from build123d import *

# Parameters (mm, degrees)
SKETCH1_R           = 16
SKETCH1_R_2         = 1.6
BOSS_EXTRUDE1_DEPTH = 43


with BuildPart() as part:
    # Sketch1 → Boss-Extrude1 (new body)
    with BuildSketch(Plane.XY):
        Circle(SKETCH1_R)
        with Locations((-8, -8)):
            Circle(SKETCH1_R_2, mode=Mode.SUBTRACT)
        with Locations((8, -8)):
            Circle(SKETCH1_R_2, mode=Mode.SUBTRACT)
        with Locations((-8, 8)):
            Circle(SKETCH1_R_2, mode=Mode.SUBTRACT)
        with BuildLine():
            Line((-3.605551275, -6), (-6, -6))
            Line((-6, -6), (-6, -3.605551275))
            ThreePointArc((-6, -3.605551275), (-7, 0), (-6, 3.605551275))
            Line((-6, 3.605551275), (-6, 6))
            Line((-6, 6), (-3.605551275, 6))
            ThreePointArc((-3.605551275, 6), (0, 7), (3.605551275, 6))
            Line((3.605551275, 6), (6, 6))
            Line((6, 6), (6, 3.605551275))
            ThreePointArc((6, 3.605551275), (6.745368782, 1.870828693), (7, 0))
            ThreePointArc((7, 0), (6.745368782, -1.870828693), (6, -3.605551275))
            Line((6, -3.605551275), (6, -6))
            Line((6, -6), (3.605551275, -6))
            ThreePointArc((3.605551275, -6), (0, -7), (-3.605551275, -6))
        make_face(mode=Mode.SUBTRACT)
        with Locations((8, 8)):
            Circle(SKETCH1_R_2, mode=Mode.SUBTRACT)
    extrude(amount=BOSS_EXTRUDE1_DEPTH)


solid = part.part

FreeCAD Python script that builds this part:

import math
import FreeCAD as App
import Part
import Sketcher

doc = App.newDocument("Part")
body = doc.addObject("PartDesign::Body", "Body")

sketch1 = body.newObject("Sketcher::SketchObject", "Sketch")
sketch1.AttachmentSupport = (doc.getObject("XY_Plane"), [""])
sketch1.MapMode = "FlatFace"
sketch1.addGeometry(Part.Circle(App.Vector(0, 0, 0), App.Vector(0, 0, 1), 16), False)
sketch1.addGeometry(Part.Circle(App.Vector(-8, -8, 0), App.Vector(0, 0, 1), 1.6), False)
sketch1.addGeometry(Part.Circle(App.Vector(8, -8, 0), App.Vector(0, 0, 1), 1.6), False)
sketch1.addGeometry(Part.ArcOfCircle(Part.Circle(App.Vector(0, 0, 0), App.Vector(0, 0, 1), 7), math.radians(-121), math.radians(-59)), False)
sketch1.addGeometry(Part.LineSegment(App.Vector(-3.6, -6, 0), App.Vector(-6, -6, 0)), False)
sketch1.addGeometry(Part.LineSegment(App.Vector(-6, -6, 0), App.Vector(-6, -3.6, 0)), False)
sketch1.addGeometry(Part.ArcOfCircle(Part.Circle(App.Vector(0, 0, 0), App.Vector(0, 0, 1), 7), math.radians(149), math.radians(211)), False)
sketch1.addGeometry(Part.LineSegment(App.Vector(-6, 3.6, 0), App.Vector(-6, 6, 0)), False)
sketch1.addGeometry(Part.LineSegment(App.Vector(-6, 6, 0), App.Vector(-3.6, 6, 0)), False)
sketch1.addGeometry(Part.ArcOfCircle(Part.Circle(App.Vector(0, 0, 0), App.Vector(0, 0, 1), 7), math.radians(59), math.radians(121)), False)
sketch1.addGeometry(Part.LineSegment(App.Vector(3.6, 6, 0), App.Vector(6, 6, 0)), False)
sketch1.addGeometry(Part.LineSegment(App.Vector(6, 6, 0), App.Vector(6, 3.6, 0)), False)
sketch1.addGeometry(Part.ArcOfCircle(Part.Circle(App.Vector(0, 0, 0), App.Vector(0, 0, 1), 7), math.radians(0), math.radians(31)), False)
sketch1.addGeometry(Part.ArcOfCircle(Part.Circle(App.Vector(0, 0, 0), App.Vector(0, 0, 1), 7), math.radians(-31), math.radians(0)), False)
sketch1.addGeometry(Part.LineSegment(App.Vector(6, -3.6, 0), App.Vector(6, -6, 0)), False)
sketch1.addGeometry(Part.LineSegment(App.Vector(6, -6, 0), App.Vector(3.6, -6, 0)), False)
sketch1.addGeometry(Part.Circle(App.Vector(-8, 8, 0), App.Vector(0, 0, 1), 1.6), False)
sketch1.addGeometry(Part.Circle(App.Vector(8, 8, 0), App.Vector(0, 0, 1), 1.6), False)
sketch1.addConstraint(Sketcher.Constraint("Coincident", 3, 1, 4, 1))
sketch1.addConstraint(Sketcher.Constraint("Coincident", 4, 2, 5, 1))
sketch1.addConstraint(Sketcher.Constraint("Coincident", 5, 2, 6, 2))
sketch1.addConstraint(Sketcher.Constraint("Coincident", 6, 1, 7, 1))
sketch1.addConstraint(Sketcher.Constraint("Coincident", 7, 2, 8, 1))
sketch1.addConstraint(Sketcher.Constraint("Coincident", 8, 2, 9, 2))
sketch1.addConstraint(Sketcher.Constraint("Coincident", 9, 1, 10, 1))
sketch1.addConstraint(Sketcher.Constraint("Coincident", 10, 2, 11, 1))
sketch1.addConstraint(Sketcher.Constraint("Coincident", 11, 2, 12, 2))
sketch1.addConstraint(Sketcher.Constraint("Tangent", 12, 1, 13, 2))
sketch1.addConstraint(Sketcher.Constraint("Coincident", 13, 1, 14, 1))
sketch1.addConstraint(Sketcher.Constraint("Coincident", 14, 2, 15, 1))
sketch1.addConstraint(Sketcher.Constraint("Coincident", 15, 2, 3, 2))
sketch1.addConstraint(Sketcher.Constraint("Horizontal", 4))
sketch1.addConstraint(Sketcher.Constraint("Vertical", 5))
sketch1.addConstraint(Sketcher.Constraint("Vertical", 7))
sketch1.addConstraint(Sketcher.Constraint("Horizontal", 8))
sketch1.addConstraint(Sketcher.Constraint("Horizontal", 10))
sketch1.addConstraint(Sketcher.Constraint("Vertical", 11))
sketch1.addConstraint(Sketcher.Constraint("Vertical", 14))
sketch1.addConstraint(Sketcher.Constraint("Horizontal", 15))
sketch1.addConstraint(Sketcher.Constraint("Coincident", 0, 3, -1, 1))
sketch1.addConstraint(Sketcher.Constraint("Coincident", 3, 3, -1, 1))
sketch1.addConstraint(Sketcher.Constraint("Coincident", 6, 3, -1, 1))
sketch1.addConstraint(Sketcher.Constraint("Coincident", 9, 3, -1, 1))
sketch1.addConstraint(Sketcher.Constraint("Coincident", 12, 3, -1, 1))
sketch1.addConstraint(Sketcher.Constraint("Equal", 1, 2))
sketch1.addConstraint(Sketcher.Constraint("Equal", 3, 6))
sketch1.addConstraint(Sketcher.Constraint("Equal", 6, 9))
sketch1.addConstraint(Sketcher.Constraint("Equal", 9, 12))
sketch1.addConstraint(Sketcher.Constraint("Equal", 12, 13))
sketch1.addConstraint(Sketcher.Constraint("Equal", 2, 16))
sketch1.addConstraint(Sketcher.Constraint("Equal", 16, 17))
sketch1.addConstraint(Sketcher.Constraint("Symmetric", 2, 3, 16, 3, -1, 1))
sketch1.addConstraint(Sketcher.Constraint("Symmetric", 1, 3, 17, 3, -1, 1))
sketch1.addConstraint(Sketcher.Constraint("Symmetric", 4, 2, 10, 2, -1, 1))
sketch1.addConstraint(Sketcher.Constraint("Symmetric", 7, 2, 14, 2, -1, 1))
sketch1.addConstraint(Sketcher.Constraint("Symmetric", 1, 3, 2, 3, -2))
sketch1.addConstraint(Sketcher.Constraint("Symmetric", 7, 2, 10, 2, -2))
sketch1.addConstraint(Sketcher.Constraint("PointOnObject", 12, 1, -1))
sketch1.addConstraint(Sketcher.Constraint("Equal", 15, 5))
sketch1.addConstraint(Sketcher.Constraint("Diameter", 0, 32.0))
sketch1.addConstraint(Sketcher.Constraint("Radius", 3, 7.0))
sketch1.addConstraint(Sketcher.Constraint("Diameter", 1, 3.2))
sketch1.addConstraint(Sketcher.Constraint("DistanceX", 1, 3, -1, 1, 8.0))
sketch1.addConstraint(Sketcher.Constraint("DistanceY", 1, 3, -1, 1, 8.0))
sketch1.addConstraint(Sketcher.Constraint("DistanceY", 3, 1, -1, 1, 6.0))
pad1 = body.newObject("PartDesign::Pad", "Pad")
pad1.Profile = sketch1
pad1.Length = 43

doc.recompute()
